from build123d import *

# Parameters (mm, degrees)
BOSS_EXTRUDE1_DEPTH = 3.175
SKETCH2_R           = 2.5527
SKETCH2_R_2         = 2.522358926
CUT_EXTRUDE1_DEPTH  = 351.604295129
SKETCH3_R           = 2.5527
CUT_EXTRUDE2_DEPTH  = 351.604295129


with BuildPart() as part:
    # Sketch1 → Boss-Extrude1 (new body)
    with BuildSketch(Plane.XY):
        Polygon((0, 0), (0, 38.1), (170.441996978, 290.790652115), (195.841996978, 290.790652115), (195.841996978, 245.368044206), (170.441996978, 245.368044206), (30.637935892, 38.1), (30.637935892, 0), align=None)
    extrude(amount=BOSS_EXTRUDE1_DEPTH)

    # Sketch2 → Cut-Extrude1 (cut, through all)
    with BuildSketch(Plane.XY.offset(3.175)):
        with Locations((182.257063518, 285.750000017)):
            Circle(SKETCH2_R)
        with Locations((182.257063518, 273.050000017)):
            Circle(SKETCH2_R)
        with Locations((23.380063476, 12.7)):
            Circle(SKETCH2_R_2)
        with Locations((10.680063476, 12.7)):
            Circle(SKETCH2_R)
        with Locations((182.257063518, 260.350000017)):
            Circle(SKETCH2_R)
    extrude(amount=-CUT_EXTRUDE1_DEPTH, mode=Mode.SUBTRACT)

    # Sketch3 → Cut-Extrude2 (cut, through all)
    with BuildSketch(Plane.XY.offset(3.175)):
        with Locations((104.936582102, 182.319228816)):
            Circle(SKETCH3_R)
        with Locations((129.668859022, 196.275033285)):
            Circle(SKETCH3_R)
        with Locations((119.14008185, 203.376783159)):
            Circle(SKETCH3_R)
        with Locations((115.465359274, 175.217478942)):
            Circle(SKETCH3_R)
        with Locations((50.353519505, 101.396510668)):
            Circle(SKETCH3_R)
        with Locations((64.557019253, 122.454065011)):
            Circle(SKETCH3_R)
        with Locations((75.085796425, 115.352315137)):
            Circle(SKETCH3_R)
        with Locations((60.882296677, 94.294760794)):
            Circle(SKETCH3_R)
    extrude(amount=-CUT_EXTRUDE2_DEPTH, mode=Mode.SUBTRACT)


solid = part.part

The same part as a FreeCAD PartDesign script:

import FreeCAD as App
import Part
import Sketcher
from FreeCAD import Vector
Q = App.Units.Quantity


def add_polygon(sketch, points):
    """Adds a closed chain of lines whose ends are joined by coincident constraints."""
    first, n = sketch.GeometryCount, len(points)
    for a, b in zip(points, points[1:] + points[:1]):
        sketch.addGeometry(Part.LineSegment(App.Vector(*a, 0), App.Vector(*b, 0)), False)
    for i in range(n):
        sketch.addConstraint(Sketcher.Constraint("Coincident", first + i, 2, first + (i + 1) % n, 1))

doc = App.newDocument("Part")
body = doc.addObject("PartDesign::Body", "Body")

# Sketch on XY plane
sketch1 = doc.addObject("Sketcher::SketchObject", "Sketch")
body.addObject(sketch1)
sketch1.AttachmentSupport = (doc.XY_Plane, [""])
sketch1.MapMode = "FlatFace"
add_polygon(sketch1, [(0, 38.1), (0, 0), (30.637936, 0), (30.637936, 38.1), (170.441997, 245.368044), (195.841997, 245.368044), (195.841997, 290.790652), (170.441997, 290.790652)])  # lines 0-7
sketch1.addConstraint([
    Sketcher.Constraint("Vertical", 0),
    Sketcher.Constraint("Horizontal", 1),
    Sketcher.Constraint("Vertical", 2),
    Sketcher.Constraint("Horizontal", 4),
    Sketcher.Constraint("Vertical", 5),
    Sketcher.Constraint("Horizontal", 6),
    Sketcher.Constraint("Coincident", 0, 2, -1, 1),
    Sketcher.Constraint("Parallel", 3, 7),
    Sketcher.Constraint("Horizontal", 2, 2, 7, 2),
    Sketcher.Constraint("Vertical", 3, 2, 6, 2),
    Sketcher.Constraint("DistanceX", 4, 1, 4, 2, Q("1 in")),
    Sketcher.Constraint("Distance", 7, Q("12 in")),
    Sketcher.Constraint("DistanceY", 0, 2, 0, 1, Q("1.5 in")),
    Sketcher.Constraint("Angle", 3, Q("56 deg")),
    Sketcher.Constraint("DistanceX", 1, 1, 1, 2, Q("30.637936 mm")),
])
pad1 = doc.addObject("PartDesign::Pad", "Pad")
body.addObject(pad1)
pad1.Profile = sketch1
pad1.Length = Q("0.125 in")

# Sketch on XY plane
sketch2 = doc.addObject("Sketcher::SketchObject", "Sketch001")
body.addObject(sketch2)
sketch2.AttachmentSupport = (doc.XY_Plane, [""])
sketch2.MapMode = "FlatFace"
sketch2.AttachmentOffset = App.Placement(Vector(0, 0, 0.125 * 25.4), App.Rotation())
sketch2.addGeometry([
    Part.Circle(Vector(182.257064, 285.75, 0), Vector(0, 0, 1), 2.5527),  # 0
    Part.Circle(Vector(182.257064, 273.05, 0), Vector(0, 0, 1), 2.5527),  # 1
    Part.Circle(Vector(23.380063, 12.7, 0), Vector(0, 0, 1), 2.522359),  # 2
    Part.Circle(Vector(10.680063, 12.7, 0), Vector(0, 0, 1), 2.5527),  # 3
    Part.Circle(Vector(182.257064, 260.35, 0), Vector(0, 0, 1), 2.5527),  # 4
], False)
sketch2.addConstraint([
    Sketcher.Constraint("Equal", 0, 1),
    Sketcher.Constraint("Equal", 1, 3),
    Sketcher.Constraint("Equal", 3, 4),
    Sketcher.Constraint("Horizontal", 2, 3, 3, 3),
    Sketcher.Constraint("Vertical", 0, 3, 1, 3),
    Sketcher.Constraint("Vertical", 1, 3, 4, 3),
    Sketcher.Constraint("Diameter", 0, Q("0.201 in")),
    Sketcher.Constraint("DistanceY", 4, 3, 0, 3, Q("1 in")),
    Sketcher.Constraint("DistanceY", -1, 1, 2, 3, Q("0.5 in")),
    Sketcher.Constraint("DistanceY", 1, 3, 0, 3, Q("0.5 in")),
    Sketcher.Constraint("DistanceX", 3, 3, 2, 3, Q("0.5 in")),
    Sketcher.Constraint("DistanceY", -1, 1, 0, 3, Q("11.25 in")),
    Sketcher.Constraint("DistanceX", 2, 3, 1, 3, Q("6.255 in")),
    Sketcher.Constraint("Diameter", 2, Q("5.044718 mm")),
    Sketcher.Constraint("DistanceX", -1, 1, 0, 3, Q("182.257064 mm")),
])
pocket1 = doc.addObject("PartDesign::Pocket", "Pocket")
body.addObject(pocket1)
pocket1.Profile = sketch2
pocket1.Type = "ThroughAll"

# Sketch on XY plane
sketch3 = doc.addObject("Sketcher::SketchObject", "Sketch002")
body.addObject(sketch3)
sketch3.AttachmentSupport = (doc.XY_Plane, [""])
sketch3.MapMode = "FlatFace"
sketch3.AttachmentOffset = App.Placement(Vector(0, 0, 0.125 * 25.4), App.Rotation())
sketch3.addGeometry([
    Part.Circle(Vector(104.936582, 182.319229, 0), Vector(0, 0, 1), 2.5527),  # 0
    Part.Circle(Vector(129.668859, 196.275033, 0), Vector(0, 0, 1), 2.5527),  # 1
    Part.Circle(Vector(119.140082, 203.376783, 0), Vector(0, 0, 1), 2.5527),  # 2
    Part.Circle(Vector(115.465359, 175.217479, 0), Vector(0, 0, 1), 2.5527),  # 3
    Part.Circle(Vector(50.35352, 101.396511, 0), Vector(0, 0, 1), 2.5527),  # 4
    Part.Circle(Vector(64.557019, 122.454065, 0), Vector(0, 0, 1), 2.5527),  # 5
    Part.Circle(Vector(75.085796, 115.352315, 0), Vector(0, 0, 1), 2.5527),  # 6
    Part.Circle(Vector(60.882297, 94.294761, 0), Vector(0, 0, 1), 2.5527),  # 7
], False)
sketch3.addConstraint([
    Sketcher.Constraint("Equal", 0, 1),
    Sketcher.Constraint("Equal", 1, 2),
    Sketcher.Constraint("Equal", 2, 3),
    Sketcher.Constraint("Equal", 3, 4),
    Sketcher.Constraint("Equal", 4, 5),
    Sketcher.Constraint("Equal", 5, 6),
    Sketcher.Constraint("Equal", 6, 7),
    Sketcher.Constraint("Diameter", 0, Q("0.201 in")),
    Sketcher.Constraint("DistanceX", 0, 3, 2, 3, Q("14.2035 mm")),
    Sketcher.Constraint("DistanceX", 3, 3, 1, 3, Q("14.2035 mm")),
    Sketcher.Constraint("DistanceX", 4, 3, 5, 3, Q("14.2035 mm")),
    Sketcher.Constraint("DistanceX", 7, 3, 6, 3, Q("14.2035 mm")),
    Sketcher.Constraint("DistanceY", -1, 1, 0, 3, Q("182.319229 mm")),
    Sketcher.Constraint("DistanceX", -1, 1, 1, 3, Q("129.668859 mm")),
    Sketcher.Constraint("DistanceX", -1, 1, 2, 3, Q("119.140082 mm")),
    Sketcher.Constraint("DistanceY", -1, 1, 3, 3, Q("175.217479 mm")),
    Sketcher.Constraint("DistanceX", -1, 1, 4, 3, Q("50.35352 mm")),
    Sketcher.Constraint("DistanceY", -1, 1, 4, 3, Q("101.396511 mm")),
    Sketcher.Constraint("DistanceY", -1, 1, 7, 3, Q("94.294761 mm")),
    Sketcher.Constraint("DistanceY", 1, 3, 2, 3, Q("7.10175 mm")),
    Sketcher.Constraint("DistanceY", 5, 3, 2, 3, Q("80.922718 mm")),
    Sketcher.Constraint("DistanceY", 6, 3, 5, 3, Q("7.10175 mm")),
    Sketcher.Constraint("DistanceY", -1, 1, 1, 3, Q("196.275033 mm")),
    Sketcher.Constraint("DistanceX", -1, 1, 6, 3, Q("75.085796 mm")),
])
pocket2 = doc.addObject("PartDesign::Pocket", "Pocket001")
body.addObject(pocket2)
pocket2.Profile = sketch3
pocket2.Type = "ThroughAll"

doc.recompute()
